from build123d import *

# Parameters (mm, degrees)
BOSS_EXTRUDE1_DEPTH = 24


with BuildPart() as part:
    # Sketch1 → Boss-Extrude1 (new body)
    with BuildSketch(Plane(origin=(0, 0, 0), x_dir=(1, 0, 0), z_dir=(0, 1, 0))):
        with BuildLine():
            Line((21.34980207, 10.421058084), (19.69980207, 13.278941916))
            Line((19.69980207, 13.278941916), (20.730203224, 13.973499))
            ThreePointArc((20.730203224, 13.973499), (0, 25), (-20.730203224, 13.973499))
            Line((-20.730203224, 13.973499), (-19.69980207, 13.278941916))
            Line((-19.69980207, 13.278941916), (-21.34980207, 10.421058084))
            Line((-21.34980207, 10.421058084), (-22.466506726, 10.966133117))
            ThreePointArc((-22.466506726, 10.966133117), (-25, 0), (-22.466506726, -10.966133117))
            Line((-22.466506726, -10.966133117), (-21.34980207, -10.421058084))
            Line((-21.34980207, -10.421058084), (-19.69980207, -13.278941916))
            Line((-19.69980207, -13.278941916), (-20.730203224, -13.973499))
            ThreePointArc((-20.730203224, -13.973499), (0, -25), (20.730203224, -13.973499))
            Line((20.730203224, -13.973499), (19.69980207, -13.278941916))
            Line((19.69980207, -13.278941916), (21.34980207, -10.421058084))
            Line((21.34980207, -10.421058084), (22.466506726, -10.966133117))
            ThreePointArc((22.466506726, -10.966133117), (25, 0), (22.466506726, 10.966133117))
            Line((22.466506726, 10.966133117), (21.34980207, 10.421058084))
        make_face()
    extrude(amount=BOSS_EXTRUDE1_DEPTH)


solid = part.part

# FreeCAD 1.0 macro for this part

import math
import FreeCAD as App
import Part
import Sketcher
Q = App.Units.Quantity

doc = App.newDocument("Part")
body = doc.addObject("PartDesign::Body", "Body")

# Sketch on XZ plane
sketch1 = doc.addObject("Sketcher::SketchObject", "Sketch")
body.addObject(sketch1)
sketch1.AttachmentSupport = (doc.XZ_Plane, [""])
sketch1.MapMode = "FlatFace"
sketch1.addGeometry([
    Part.LineSegment(App.Vector(21.349802, -10.421058, 0), App.Vector(19.699802, -13.278942, 0)),  # 0
    Part.LineSegment(App.Vector(19.699802, -13.278942, 0), App.Vector(20.730203, -13.973499, 0)),  # 1
    Part.ArcOfCircle(Part.Circle(App.Vector(0, 0, 0), App.Vector(0, 0, 1), 25), math.radians(-146.017479), math.radians(-33.982521)),  # 2
    Part.LineSegment(App.Vector(-20.730203, -13.973499, 0), App.Vector(-19.699802, -13.278942, 0)),  # 3
    Part.LineSegment(App.Vector(-19.699802, -13.278942, 0), App.Vector(-21.349802, -10.421058, 0)),  # 4
    Part.LineSegment(App.Vector(-21.349802, -10.421058, 0), App.Vector(-22.466507, -10.966133, 0)),  # 5
    Part.ArcOfCircle(Part.Circle(App.Vector(0, 0, 0), App.Vector(0, 0, 1), 25), math.radians(153.982521), math.radians(206.017479)),  # 6
    Part.LineSegment(App.Vector(-22.466507, 10.966133, 0), App.Vector(-21.349802, 10.421058, 0)),  # 7
    Part.LineSegment(App.Vector(-21.349802, 10.421058, 0), App.Vector(-19.699802, 13.278942, 0)),  # 8
    Part.LineSegment(App.Vector(-19.699802, 13.278942, 0), App.Vector(-20.730203, 13.973499, 0)),  # 9
    Part.ArcOfCircle(Part.Circle(App.Vector(0, 0, 0), App.Vector(0, 0, 1), 25), math.radians(33.982521), math.radians(146.017479)),  # 10
    Part.LineSegment(App.Vector(20.730203, 13.973499, 0), App.Vector(19.699802, 13.278942, 0)),  # 11
    Part.LineSegment(App.Vector(19.699802, 13.278942, 0), App.Vector(21.349802, 10.421058, 0)),  # 12
    Part.LineSegment(App.Vector(21.349802, 10.421058, 0), App.Vector(22.466507, 10.966133, 0)),  # 13
    Part.ArcOfCircle(Part.Circle(App.Vector(0, 0, 0), App.Vector(0, 0, 1), 25), math.radians(-26.017479), math.radians(26.017479)),  # 14
    Part.LineSegment(App.Vector(22.466507, -10.966133, 0), App.Vector(21.349802, -10.421058, 0)),  # 15
], False)
sketch1.addConstraint([
    Sketcher.Constraint("Coincident", 0, 2, 1, 1),
    Sketcher.Constraint("Coincident", 1, 2, 2, 2),
    Sketcher.Constraint("Coincident", 2, 1, 3, 1),
    Sketcher.Constraint("Coincident", 3, 2, 4, 1),
    Sketcher.Constraint("Coincident", 4, 2, 5, 1),
    Sketcher.Constraint("Coincident", 5, 2, 6, 2),
    Sketcher.Constraint("Coincident", 6, 1, 7, 1),
    Sketcher.Constraint("Coincident", 7, 2, 8, 1),
    Sketcher.Constraint("Coincident", 8, 2, 9, 1),
    Sketcher.Constraint("Coincident", 9, 2, 10, 2),
    Sketcher.Constraint("Coincident", 10, 1, 11, 1),
    Sketcher.Constraint("Coincident", 11, 2, 12, 1),
    Sketcher.Constraint("Coincident", 12, 2, 13, 1),
    Sketcher.Constraint("Coincident", 13, 2, 14, 2),
    Sketcher.Constraint("Coincident", 14, 1, 15, 1),
    Sketcher.Constraint("Coincident", 15, 2, 0, 1),
    Sketcher.Constraint("Coincident", 2, 3, -1, 1),
    Sketcher.Constraint("Coincident", 6, 3, -1, 1),
    Sketcher.Constraint("Coincident", 10, 3, -1, 1),
    Sketcher.Constraint("Coincident", 14, 3, -1, 1),
    Sketcher.Constraint("Equal", 2, 6),
    Sketcher.Constraint("Equal", 6, 10),
    Sketcher.Constraint("Equal", 10, 14),
    Sketcher.Constraint("Symmetric", 0, 2, 8, 2, -1, 1),
    Sketcher.Constraint("Symmetric", 3, 2, 11, 2, -1, 1),
    Sketcher.Constraint("Symmetric", 4, 2, 12, 2, -1, 1),
    Sketcher.Constraint("Symmetric", 7, 2, 15, 2, -1, 1),
    Sketcher.Constraint("Symmetric", 0, 2, 3, 2, -2),
    Sketcher.Constraint("Symmetric", 7, 2, 12, 2, -2),
    Sketcher.Constraint("Parallel", 1, 9),
    Sketcher.Constraint("Parallel", 3, 11),
    Sketcher.Constraint("Parallel", 5, 13),
    Sketcher.Constraint("Parallel", 7, 15),
    Sketcher.Constraint("Horizontal", 1, 2, 2, 1),
    Sketcher.Constraint("Horizontal", 6, 1, 13, 2),
    Sketcher.Constraint("Equal", 3, 5),
    Sketcher.Constraint("Radius", 2, Q("25 mm")),
    Sketcher.Constraint("Angle", 0, Q("-120 deg")),
    Sketcher.Constraint("Distance", 0, Q("3.3 mm")),
    Sketcher.Constraint("DistanceY", 4, 2, 8, 2, Q("23.7 mm")),
    Sketcher.Constraint("DistanceY", 1, 2, -1, 1, Q("13.973499 mm")),
    Sketcher.Constraint("DistanceY", 3, 2, 5, 2, Q("2.312809 mm")),
])
pad1 = doc.addObject("PartDesign::Pad", "Pad")
body.addObject(pad1)
pad1.Profile = sketch1
pad1.Length = 24
pad1.Reversed = True

doc.recompute()
